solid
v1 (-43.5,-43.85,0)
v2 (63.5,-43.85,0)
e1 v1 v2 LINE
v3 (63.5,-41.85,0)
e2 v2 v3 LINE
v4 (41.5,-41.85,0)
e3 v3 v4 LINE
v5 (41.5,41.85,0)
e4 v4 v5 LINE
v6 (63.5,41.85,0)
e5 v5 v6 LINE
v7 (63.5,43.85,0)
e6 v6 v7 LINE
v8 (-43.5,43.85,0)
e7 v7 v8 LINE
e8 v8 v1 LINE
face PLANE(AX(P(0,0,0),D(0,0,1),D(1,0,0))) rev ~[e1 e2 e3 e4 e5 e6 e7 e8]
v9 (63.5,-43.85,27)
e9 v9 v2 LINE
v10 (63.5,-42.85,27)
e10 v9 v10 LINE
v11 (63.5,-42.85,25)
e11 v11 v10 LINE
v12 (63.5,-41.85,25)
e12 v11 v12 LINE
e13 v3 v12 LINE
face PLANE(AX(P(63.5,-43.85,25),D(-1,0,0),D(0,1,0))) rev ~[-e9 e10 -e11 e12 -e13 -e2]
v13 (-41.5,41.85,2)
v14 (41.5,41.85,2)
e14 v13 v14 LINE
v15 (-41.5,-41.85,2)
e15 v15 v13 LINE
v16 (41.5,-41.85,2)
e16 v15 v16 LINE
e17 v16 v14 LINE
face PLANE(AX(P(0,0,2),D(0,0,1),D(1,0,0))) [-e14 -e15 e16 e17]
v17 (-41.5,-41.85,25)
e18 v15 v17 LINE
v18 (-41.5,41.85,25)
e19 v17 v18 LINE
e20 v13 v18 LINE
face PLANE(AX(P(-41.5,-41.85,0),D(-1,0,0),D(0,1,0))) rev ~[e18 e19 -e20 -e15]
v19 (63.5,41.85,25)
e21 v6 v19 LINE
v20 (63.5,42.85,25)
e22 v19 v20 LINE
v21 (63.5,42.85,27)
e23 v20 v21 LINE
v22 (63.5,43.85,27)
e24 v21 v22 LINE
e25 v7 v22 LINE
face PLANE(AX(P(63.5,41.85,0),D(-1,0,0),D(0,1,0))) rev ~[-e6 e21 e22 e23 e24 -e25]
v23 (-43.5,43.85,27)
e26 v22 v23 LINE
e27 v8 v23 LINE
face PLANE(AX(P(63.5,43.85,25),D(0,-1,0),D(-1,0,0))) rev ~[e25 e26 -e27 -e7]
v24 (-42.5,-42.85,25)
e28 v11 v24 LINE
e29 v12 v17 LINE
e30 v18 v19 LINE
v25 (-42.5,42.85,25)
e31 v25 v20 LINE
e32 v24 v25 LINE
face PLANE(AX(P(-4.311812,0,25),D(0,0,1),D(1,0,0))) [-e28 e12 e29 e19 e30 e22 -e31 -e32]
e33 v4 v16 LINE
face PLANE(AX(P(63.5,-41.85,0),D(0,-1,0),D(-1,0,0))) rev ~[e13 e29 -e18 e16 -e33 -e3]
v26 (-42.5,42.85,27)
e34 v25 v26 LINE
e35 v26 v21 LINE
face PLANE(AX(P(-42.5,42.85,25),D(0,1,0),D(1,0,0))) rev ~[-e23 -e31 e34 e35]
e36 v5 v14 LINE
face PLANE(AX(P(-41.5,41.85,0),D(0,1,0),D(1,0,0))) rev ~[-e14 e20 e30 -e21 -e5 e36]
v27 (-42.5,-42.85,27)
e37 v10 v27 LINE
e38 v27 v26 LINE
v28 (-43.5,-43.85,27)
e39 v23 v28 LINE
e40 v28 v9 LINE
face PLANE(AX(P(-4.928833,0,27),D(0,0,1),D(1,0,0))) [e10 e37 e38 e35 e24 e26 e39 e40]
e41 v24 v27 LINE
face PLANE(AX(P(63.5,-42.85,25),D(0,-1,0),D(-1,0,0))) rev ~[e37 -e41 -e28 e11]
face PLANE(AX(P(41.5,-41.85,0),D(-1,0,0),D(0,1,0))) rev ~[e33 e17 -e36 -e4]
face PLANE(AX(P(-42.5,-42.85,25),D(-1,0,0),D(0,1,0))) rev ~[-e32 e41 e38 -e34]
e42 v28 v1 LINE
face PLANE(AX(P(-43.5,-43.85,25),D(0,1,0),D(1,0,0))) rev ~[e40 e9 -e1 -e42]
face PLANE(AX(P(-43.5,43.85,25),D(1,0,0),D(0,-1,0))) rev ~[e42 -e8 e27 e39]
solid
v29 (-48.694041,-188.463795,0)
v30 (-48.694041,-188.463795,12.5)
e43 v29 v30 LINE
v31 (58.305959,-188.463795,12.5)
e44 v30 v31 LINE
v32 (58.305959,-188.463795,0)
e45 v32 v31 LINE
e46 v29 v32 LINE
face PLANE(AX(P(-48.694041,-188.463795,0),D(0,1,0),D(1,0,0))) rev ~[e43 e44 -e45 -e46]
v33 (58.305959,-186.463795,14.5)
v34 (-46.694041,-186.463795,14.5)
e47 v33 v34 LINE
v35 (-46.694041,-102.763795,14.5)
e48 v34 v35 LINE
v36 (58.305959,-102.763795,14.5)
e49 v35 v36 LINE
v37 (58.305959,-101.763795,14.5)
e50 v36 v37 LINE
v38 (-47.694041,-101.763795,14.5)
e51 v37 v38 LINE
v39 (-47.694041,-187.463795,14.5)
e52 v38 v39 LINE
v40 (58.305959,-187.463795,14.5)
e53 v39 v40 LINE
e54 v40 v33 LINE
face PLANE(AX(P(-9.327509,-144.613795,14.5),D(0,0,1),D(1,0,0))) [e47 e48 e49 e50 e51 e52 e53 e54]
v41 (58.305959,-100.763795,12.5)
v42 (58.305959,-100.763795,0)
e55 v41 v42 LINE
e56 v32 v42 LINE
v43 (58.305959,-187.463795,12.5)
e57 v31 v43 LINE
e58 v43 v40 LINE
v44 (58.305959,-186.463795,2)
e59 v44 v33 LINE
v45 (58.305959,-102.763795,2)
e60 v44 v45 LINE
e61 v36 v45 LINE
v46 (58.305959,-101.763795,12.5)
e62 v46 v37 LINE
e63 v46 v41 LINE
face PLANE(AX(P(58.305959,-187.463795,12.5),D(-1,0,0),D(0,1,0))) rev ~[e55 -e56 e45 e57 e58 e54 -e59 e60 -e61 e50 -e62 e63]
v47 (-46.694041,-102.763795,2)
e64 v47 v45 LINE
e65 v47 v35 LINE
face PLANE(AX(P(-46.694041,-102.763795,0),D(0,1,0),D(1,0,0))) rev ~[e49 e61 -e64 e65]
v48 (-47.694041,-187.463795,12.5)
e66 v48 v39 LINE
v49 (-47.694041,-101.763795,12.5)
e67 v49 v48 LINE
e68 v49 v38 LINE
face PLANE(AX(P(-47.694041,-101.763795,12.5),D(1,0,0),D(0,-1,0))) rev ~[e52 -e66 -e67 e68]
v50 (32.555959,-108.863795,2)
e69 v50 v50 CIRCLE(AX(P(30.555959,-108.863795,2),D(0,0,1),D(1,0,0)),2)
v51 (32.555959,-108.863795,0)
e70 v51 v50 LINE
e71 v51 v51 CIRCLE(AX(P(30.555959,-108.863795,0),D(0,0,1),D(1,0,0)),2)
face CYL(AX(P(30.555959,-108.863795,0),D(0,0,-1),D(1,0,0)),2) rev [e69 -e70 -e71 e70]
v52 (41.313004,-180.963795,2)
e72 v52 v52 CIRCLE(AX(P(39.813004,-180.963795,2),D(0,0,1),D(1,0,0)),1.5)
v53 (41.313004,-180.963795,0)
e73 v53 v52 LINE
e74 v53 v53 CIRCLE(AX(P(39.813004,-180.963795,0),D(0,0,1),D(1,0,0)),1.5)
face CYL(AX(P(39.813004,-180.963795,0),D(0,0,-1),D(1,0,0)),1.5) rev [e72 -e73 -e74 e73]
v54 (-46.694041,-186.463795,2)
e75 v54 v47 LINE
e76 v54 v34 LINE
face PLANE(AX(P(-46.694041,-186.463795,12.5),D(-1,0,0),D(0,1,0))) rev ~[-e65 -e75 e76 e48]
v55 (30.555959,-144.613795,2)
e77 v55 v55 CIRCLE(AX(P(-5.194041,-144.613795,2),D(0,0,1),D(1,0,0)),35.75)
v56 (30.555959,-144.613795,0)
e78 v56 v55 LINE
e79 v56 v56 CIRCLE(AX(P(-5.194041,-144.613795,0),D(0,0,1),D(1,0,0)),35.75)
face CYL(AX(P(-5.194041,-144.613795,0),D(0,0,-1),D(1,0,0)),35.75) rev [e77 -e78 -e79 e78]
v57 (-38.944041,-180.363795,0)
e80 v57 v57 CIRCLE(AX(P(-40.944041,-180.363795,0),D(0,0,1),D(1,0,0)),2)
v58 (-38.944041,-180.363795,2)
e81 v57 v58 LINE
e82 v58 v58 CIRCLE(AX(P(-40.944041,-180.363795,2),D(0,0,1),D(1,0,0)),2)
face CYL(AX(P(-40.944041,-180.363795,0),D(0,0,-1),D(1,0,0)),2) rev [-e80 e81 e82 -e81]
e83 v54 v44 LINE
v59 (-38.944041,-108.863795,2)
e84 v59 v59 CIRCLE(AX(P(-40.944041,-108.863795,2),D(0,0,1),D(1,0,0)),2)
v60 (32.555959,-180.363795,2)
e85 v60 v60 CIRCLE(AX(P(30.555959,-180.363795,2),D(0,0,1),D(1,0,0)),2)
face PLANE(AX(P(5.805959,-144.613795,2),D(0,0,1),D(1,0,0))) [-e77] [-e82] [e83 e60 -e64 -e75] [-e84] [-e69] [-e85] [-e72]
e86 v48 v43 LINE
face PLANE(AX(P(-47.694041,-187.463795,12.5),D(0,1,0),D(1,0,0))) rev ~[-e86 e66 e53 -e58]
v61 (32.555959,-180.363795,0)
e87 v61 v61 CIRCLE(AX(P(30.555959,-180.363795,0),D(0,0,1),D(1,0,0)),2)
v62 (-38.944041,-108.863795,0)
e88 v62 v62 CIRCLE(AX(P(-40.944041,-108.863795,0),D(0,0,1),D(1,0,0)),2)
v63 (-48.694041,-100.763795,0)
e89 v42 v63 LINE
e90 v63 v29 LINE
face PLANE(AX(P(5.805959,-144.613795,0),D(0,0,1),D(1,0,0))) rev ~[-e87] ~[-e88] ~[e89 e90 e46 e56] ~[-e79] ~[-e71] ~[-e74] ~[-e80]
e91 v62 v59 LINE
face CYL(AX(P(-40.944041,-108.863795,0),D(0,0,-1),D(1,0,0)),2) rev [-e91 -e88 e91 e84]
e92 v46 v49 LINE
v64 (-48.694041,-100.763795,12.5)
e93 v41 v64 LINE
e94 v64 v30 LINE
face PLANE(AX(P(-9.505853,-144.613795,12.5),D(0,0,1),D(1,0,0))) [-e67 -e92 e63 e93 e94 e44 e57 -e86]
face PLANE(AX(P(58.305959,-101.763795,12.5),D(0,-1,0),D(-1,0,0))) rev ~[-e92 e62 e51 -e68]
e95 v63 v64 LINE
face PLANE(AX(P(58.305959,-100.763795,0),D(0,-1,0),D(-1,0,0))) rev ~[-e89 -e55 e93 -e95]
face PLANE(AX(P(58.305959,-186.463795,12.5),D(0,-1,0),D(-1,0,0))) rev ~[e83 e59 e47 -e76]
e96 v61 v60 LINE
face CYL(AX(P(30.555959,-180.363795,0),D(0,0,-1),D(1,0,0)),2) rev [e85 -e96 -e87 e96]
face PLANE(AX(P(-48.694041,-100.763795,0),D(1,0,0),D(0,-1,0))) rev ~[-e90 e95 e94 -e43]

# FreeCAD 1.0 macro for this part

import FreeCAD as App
import Part
import Sketcher

V = App.Vector


def add_polygon(sketch, points):
    """Adds a closed chain of lines whose ends are joined by coincident constraints."""
    first, n = sketch.GeometryCount, len(points)
    for a, b in zip(points, points[1:] + points[:1]):
        sketch.addGeometry(Part.LineSegment(App.Vector(*a, 0), App.Vector(*b, 0)), False)
    for i in range(n):
        sketch.addConstraint(Sketcher.Constraint("Coincident", first + i, 2, first + (i + 1) % n, 1))

doc = App.newDocument("Part")
body = doc.addObject("PartDesign::Body", "Body")

# Sketch on XY plane
sketch1 = body.newObject("Sketcher::SketchObject", "Sketch")
sketch1.AttachmentSupport = (doc.getObject("XY_Plane"), [""])
sketch1.MapMode = "FlatFace"
add_polygon(sketch1, [(63.5, -41.9), (-41.5, -41.9), (-41.5, 41.9), (63.5, 41.9), (63.5, 43.9), (-43.5, 43.9), (-43.5, -43.9), (63.5, -43.9)])  # lines 0-7
sketch1.addConstraint(Sketcher.Constraint("Horizontal", 0))
sketch1.addConstraint(Sketcher.Constraint("Vertical", 1))
sketch1.addConstraint(Sketcher.Constraint("Horizontal", 2))
sketch1.addConstraint(Sketcher.Constraint("Vertical", 3))
sketch1.addConstraint(Sketcher.Constraint("Horizontal", 4))
sketch1.addConstraint(Sketcher.Constraint("Vertical", 5))
sketch1.addConstraint(Sketcher.Constraint("Horizontal", 6))
sketch1.addConstraint(Sketcher.Constraint("Vertical", 7))
sketch1.addConstraint(Sketcher.Constraint("Symmetric", 3, 2, 6, 2, -1))
sketch1.addConstraint(Sketcher.Constraint("Equal", 3, 7))
sketch1.addConstraint(Sketcher.Constraint("DistanceX", 0, 2, 0, 1, 105.0))
sketch1.addConstraint(Sketcher.Constraint("DistanceX", 4, 2, 4, 1, 107.0))
sketch1.addConstraint(Sketcher.Constraint("DistanceY", 3, 1, 3, 2, 2.0))
sketch1.addConstraint(Sketcher.Constraint("DistanceY", 1, 1, 1, 2, 83.7))
sketch1.addConstraint(Sketcher.Constraint("DistanceX", 0, 2, -1, 1, 41.5))
pad1 = body.newObject("PartDesign::Pad", "Pad")
pad1.Profile = sketch1
pad1.Length = 25

# Sketch on XY plane
sketch2 = body.newObject("Sketcher::SketchObject", "Sketch001")
sketch2.AttachmentSupport = (doc.getObject("XY_Plane"), [""])
sketch2.MapMode = "FlatFace"
add_polygon(sketch2, [(-42, 42), (-42, -42), (42, -42), (42, 42)])  # lines 0-3
sketch2.addConstraint(Sketcher.Constraint("Vertical", 0))
sketch2.addConstraint(Sketcher.Constraint("Horizontal", 1))
sketch2.addConstraint(Sketcher.Constraint("Vertical", 2))
sketch2.addConstraint(Sketcher.Constraint("Horizontal", 3))
sketch2.addConstraint(Sketcher.Constraint("Symmetric", 0, 2, 2, 2, -1, 1))
sketch2.addConstraint(Sketcher.Constraint("DistanceX", 1, 1, 1, 2, 83.0))
sketch2.addConstraint(Sketcher.Constraint("DistanceY", 0, 2, 0, 1, 83.7))
pad2 = body.newObject("PartDesign::Pad", "Pad001")
pad2.Profile = sketch2
pad2.Length = 2

# Sketch on XY plane
sketch3 = body.newObject("Sketcher::SketchObject", "Sketch002")
sketch3.AttachmentSupport = (doc.getObject("XY_Plane"), [""])
sketch3.MapMode = "FlatFace"
sketch3.AttachmentOffset = App.Placement(V(0, 0, 25), App.Rotation())
add_polygon(sketch3, [(63.5, -42.9), (-42.5, -42.9), (-42.5, 42.9), (63.5, 42.9), (63.5, 43.9), (-43.5, 43.9), (-43.5, -43.9), (63.5, -43.9)])  # lines 0-7
sketch3.addConstraint(Sketcher.Constraint("Horizontal", 0))
sketch3.addConstraint(Sketcher.Constraint("Vertical", 1))
sketch3.addConstraint(Sketcher.Constraint("Horizontal", 2))
sketch3.addConstraint(Sketcher.Constraint("Vertical", 3))
sketch3.addConstraint(Sketcher.Constraint("Horizontal", 4))
sketch3.addConstraint(Sketcher.Constraint("Vertical", 5))
sketch3.addConstraint(Sketcher.Constraint("Horizontal", 6))
sketch3.addConstraint(Sketcher.Constraint("Vertical", 7))
sketch3.addConstraint(Sketcher.Constraint("Symmetric", 3, 2, 6, 2, -1))
sketch3.addConstraint(Sketcher.Constraint("Equal", 3, 7))
sketch3.addConstraint(Sketcher.Constraint("DistanceX", 0, 2, 0, 1, 106.0))
sketch3.addConstraint(Sketcher.Constraint("DistanceX", 4, 2, 4, 1, 107.0))
sketch3.addConstraint(Sketcher.Constraint("DistanceY", 3, 1, 3, 2, 1.0))
sketch3.addConstraint(Sketcher.Constraint("DistanceY", 1, 1, 1, 2, 85.7))
sketch3.addConstraint(Sketcher.Constraint("DistanceX", 0, 2, -1, 1, 42.5))
pad3 = body.newObject("PartDesign::Pad", "Pad002")
pad3.Profile = sketch3
pad3.Length = 2
body2 = doc.addObject("PartDesign::Body", "Body001")

# Sketch on XY plane
sketch4 = body2.newObject("Sketcher::SketchObject", "Sketch003")
sketch4.AttachmentSupport = (doc.getObject("XY_Plane001"), [""])
sketch4.MapMode = "FlatFace"
add_polygon(sketch4, [(58.3, -100.8), (-48.7, -100.8), (-48.7, -188.5), (58.3, -188.5), (58.3, -186.5), (-46.7, -186.5), (-46.7, -102.8), (58.3, -102.8)])  # lines 0-7
sketch4.addConstraint(Sketcher.Constraint("Horizontal", 0))
sketch4.addConstraint(Sketcher.Constraint("Vertical", 1))
sketch4.addConstraint(Sketcher.Constraint("Horizontal", 2))
sketch4.addConstraint(Sketcher.Constraint("Vertical", 3))
sketch4.addConstraint(Sketcher.Constraint("Horizontal", 4))
sketch4.addConstraint(Sketcher.Constraint("Vertical", 5))
sketch4.addConstraint(Sketcher.Constraint("Horizontal", 6))
sketch4.addConstraint(Sketcher.Constraint("Vertical", 7))
sketch4.addConstraint(Sketcher.Constraint("Vertical", 3, 2, 6, 2))
sketch4.addConstraint(Sketcher.Constraint("Equal", 3, 7))
sketch4.addConstraint(Sketcher.Constraint("DistanceX", 0, 2, 0, 1, 107.0))
sketch4.addConstraint(Sketcher.Constraint("DistanceX", 4, 2, 4, 1, 105.0))
sketch4.addConstraint(Sketcher.Constraint("DistanceY", 3, 1, 3, 2, 2.0))
sketch4.addConstraint(Sketcher.Constraint("DistanceY", 1, 2, 1, 1, 87.7))
sketch4.addConstraint(Sketcher.Constraint("DistanceX", 0, 2, -1, 1, 48.694041))
sketch4.addConstraint(Sketcher.Constraint("DistanceY", 0, 2, -1, 1, 100.763795))
pad4 = body2.newObject("PartDesign::Pad", "Pad003")
pad4.Profile = sketch4
pad4.Length = 2

# Sketch on XY plane
sketch5 = body2.newObject("Sketcher::SketchObject", "Sketch004")
sketch5.AttachmentSupport = (doc.getObject("XY_Plane001"), [""])
sketch5.MapMode = "FlatFace"
add_polygon(sketch5, [(58.3, -100.8), (-48.7, -100.8), (-48.7, -188.5), (58.3, -188.5), (58.3, -186.5), (-46.7, -186.5), (-46.7, -102.8), (58.3, -102.8)])  # lines 0-7
sketch5.addConstraint(Sketcher.Constraint("Horizontal", 0))
sketch5.addConstraint(Sketcher.Constraint("Vertical", 1))
sketch5.addConstraint(Sketcher.Constraint("Horizontal", 2))
sketch5.addConstraint(Sketcher.Constraint("Vertical", 3))
sketch5.addConstraint(Sketcher.Constraint("Horizontal", 4))
sketch5.addConstraint(Sketcher.Constraint("Vertical", 5))
sketch5.addConstraint(Sketcher.Constraint("Horizontal", 6))
sketch5.addConstraint(Sketcher.Constraint("Vertical", 7))
sketch5.addConstraint(Sketcher.Constraint("Vertical", 3, 2, 6, 2))
sketch5.addConstraint(Sketcher.Constraint("Equal", 3, 7))
sketch5.addConstraint(Sketcher.Constraint("DistanceX", 0, 2, 0, 1, 107.0))
sketch5.addConstraint(Sketcher.Constraint("DistanceX", 4, 2, 4, 1, 105.0))
sketch5.addConstraint(Sketcher.Constraint("DistanceY", 3, 1, 3, 2, 2.0))
sketch5.addConstraint(Sketcher.Constraint("DistanceY", 1, 2, 1, 1, 87.7))
sketch5.addConstraint(Sketcher.Constraint("DistanceX", 0, 2, -1, 1, 48.694041))
sketch5.addConstraint(Sketcher.Constraint("DistanceY", 0, 2, -1, 1, 100.763795))
pad5 = body2.newObject("PartDesign::Pad", "Pad004")
pad5.Profile = sketch5
pad5.Length = 12.5

# Sketch on XY plane
sketch6 = body2.newObject("Sketcher::SketchObject", "Sketch005")
sketch6.AttachmentSupport = (doc.getObject("XY_Plane001"), [""])
sketch6.MapMode = "FlatFace"
add_polygon(sketch6, [(-46.7, -102.8), (-46.7, -186.5), (58.3, -186.5), (58.3, -102.8)])  # lines 0-3
sketch6.addGeometry(Part.Circle(V(-40.9, -180.4, 0), V(0, 0, 1), 2), False)  # 4
sketch6.addGeometry(Part.Circle(V(30.6, -180.4, 0), V(0, 0, 1), 2), False)  # 5
sketch6.addGeometry(Part.Circle(V(39.8, -181, 0), V(0, 0, 1), 1.5), False)  # 6
sketch6.addGeometry(Part.Circle(V(-5.2, -144.6, 0), V(0, 0, 1), 35.8), False)  # 7
sketch6.addGeometry(Part.Circle(V(-40.9, -108.9, 0), V(0, 0, 1), 2), False)  # 8
sketch6.addGeometry(Part.Circle(V(30.6, -108.9, 0), V(0, 0, 1), 2), False)  # 9
sketch6.addConstraint(Sketcher.Constraint("Vertical", 0))
sketch6.addConstraint(Sketcher.Constraint("Horizontal", 1))
sketch6.addConstraint(Sketcher.Constraint("Vertical", 2))
sketch6.addConstraint(Sketcher.Constraint("Horizontal", 3))
sketch6.addConstraint(Sketcher.Constraint("Equal", 4, 5))
sketch6.addConstraint(Sketcher.Constraint("Equal", 5, 8))
sketch6.addConstraint(Sketcher.Constraint("Equal", 8, 9))
sketch6.addConstraint(Sketcher.Constraint("Horizontal", 4, 3, 5, 3))
sketch6.addConstraint(Sketcher.Constraint("Horizontal", 8, 3, 9, 3))
sketch6.addConstraint(Sketcher.Constraint("Vertical", 4, 3, 8, 3))
sketch6.addConstraint(Sketcher.Constraint("Vertical", 5, 3, 9, 3))
sketch6.addConstraint(Sketcher.Constraint("Diameter", 4, 4.0))
sketch6.addConstraint(Sketcher.Constraint("Diameter", 6, 3.0))
sketch6.addConstraint(Sketcher.Constraint("Diameter", 7, 71.5))
sketch6.addConstraint(Sketcher.Constraint("DistanceX", 1, 1, 1, 2, 105.0))
sketch6.addConstraint(Sketcher.Constraint("DistanceY", 0, 2, 0, 1, 83.7))
sketch6.addConstraint(Sketcher.Constraint("DistanceX", 4, 3, 5, 3, 71.5))
sketch6.addConstraint(Sketcher.Constraint("DistanceY", 6, 3, 5, 3, 0.6))
sketch6.addConstraint(Sketcher.Constraint("DistanceY", 4, 3, 8, 3, 71.5))
sketch6.addConstraint(Sketcher.Constraint("DistanceY", 0, 2, 4, 3, 6.1))
sketch6.addConstraint(Sketcher.Constraint("DistanceX", 0, 2, 7, 3, 41.5))
sketch6.addConstraint(Sketcher.Constraint("DistanceX", 4, 3, 7, 3, 35.75))
sketch6.addConstraint(Sketcher.Constraint("DistanceY", 4, 3, 7, 3, 35.75))
sketch6.addConstraint(Sketcher.Constraint("DistanceX", 4, 3, -1, 1, 40.944041))
sketch6.addConstraint(Sketcher.Constraint("DistanceY", 4, 3, -1, 1, 180.363795))
sketch6.addConstraint(Sketcher.Constraint("DistanceX", -1, 1, 6, 3, 39.813004))
pad6 = body2.newObject("PartDesign::Pad", "Pad005")
pad6.Profile = sketch6
pad6.Length = 2

# Sketch on XY plane
sketch7 = body2.newObject("Sketcher::SketchObject", "Sketch006")
sketch7.AttachmentSupport = (doc.getObject("XY_Plane001"), [""])
sketch7.MapMode = "FlatFace"
sketch7.AttachmentOffset = App.Placement(V(0, 0, 12.5), App.Rotation())
add_polygon(sketch7, [(58.3, -187.5), (58.3, -186.5), (-46.7, -186.5), (-46.7, -102.8), (58.3, -102.8), (58.3, -101.8), (-47.7, -101.8), (-47.7, -187.5)])  # lines 0-7
sketch7.addConstraint(Sketcher.Constraint("Vertical", 0))
sketch7.addConstraint(Sketcher.Constraint("Horizontal", 1))
sketch7.addConstraint(Sketcher.Constraint("Vertical", 2))
sketch7.addConstraint(Sketcher.Constraint("Horizontal", 3))
sketch7.addConstraint(Sketcher.Constraint("Vertical", 4))
sketch7.addConstraint(Sketcher.Constraint("Horizontal", 5))
sketch7.addConstraint(Sketcher.Constraint("Vertical", 6))
sketch7.addConstraint(Sketcher.Constraint("Horizontal", 7))
sketch7.addConstraint(Sketcher.Constraint("Vertical", 0, 2, 3, 2))
sketch7.addConstraint(Sketcher.Constraint("Equal", 0, 4))
sketch7.addConstraint(Sketcher.Constraint("DistanceX", 1, 2, 1, 1, 105.0))
sketch7.addConstraint(Sketcher.Constraint("DistanceX", 5, 2, 5, 1, 106.0))
sketch7.addConstraint(Sketcher.Constraint("DistanceY", 0, 1, 0, 2, 1.0))
sketch7.addConstraint(Sketcher.Constraint("DistanceY", 2, 1, 2, 2, 83.7))
sketch7.addConstraint(Sketcher.Constraint("DistanceX", -1, 1, 0, 2, 58.305959))
sketch7.addConstraint(Sketcher.Constraint("DistanceY", 0, 2, -1, 1, 186.463795))
pad7 = body2.newObject("PartDesign::Pad", "Pad006")
pad7.Profile = sketch7
pad7.Length = 2

doc.recompute()
